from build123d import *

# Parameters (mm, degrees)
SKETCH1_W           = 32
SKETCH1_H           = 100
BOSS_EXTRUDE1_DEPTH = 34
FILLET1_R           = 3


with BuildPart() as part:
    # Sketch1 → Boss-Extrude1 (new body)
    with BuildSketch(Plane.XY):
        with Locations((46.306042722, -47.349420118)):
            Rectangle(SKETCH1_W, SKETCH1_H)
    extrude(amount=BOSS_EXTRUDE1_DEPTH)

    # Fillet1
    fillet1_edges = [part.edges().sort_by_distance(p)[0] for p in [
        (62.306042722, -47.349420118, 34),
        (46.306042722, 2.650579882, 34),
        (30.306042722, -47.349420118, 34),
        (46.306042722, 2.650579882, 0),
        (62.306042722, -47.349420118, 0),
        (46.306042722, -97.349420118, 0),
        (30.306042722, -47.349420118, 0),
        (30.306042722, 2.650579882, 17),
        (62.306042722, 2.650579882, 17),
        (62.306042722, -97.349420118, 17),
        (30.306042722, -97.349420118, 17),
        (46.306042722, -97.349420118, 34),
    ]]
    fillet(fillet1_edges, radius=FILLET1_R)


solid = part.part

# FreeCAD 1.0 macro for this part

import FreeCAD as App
import Part
import Sketcher


def add_polygon(sketch, points):
    """Adds a closed chain of lines whose ends are joined by coincident constraints."""
    first, n = sketch.GeometryCount, len(points)
    for a, b in zip(points, points[1:] + points[:1]):
        sketch.addGeometry(Part.LineSegment(App.Vector(*a, 0), App.Vector(*b, 0)), False)
    for i in range(n):
        sketch.addConstraint(Sketcher.Constraint("Coincident", first + i, 2, first + (i + 1) % n, 1))

doc = App.newDocument("Part")
body = doc.addObject("PartDesign::Body", "Body")

sketch1 = body.newObject("Sketcher::SketchObject", "Sketch")
sketch1.AttachmentSupport = (doc.getObject("XY_Plane"), [""])
sketch1.MapMode = "FlatFace"
add_polygon(sketch1, [(30.306043, 2.65058), (30.306043, -97.34942), (62.306043, -97.34942), (62.306043, 2.65058)])
sketch1.addConstraint([
    Sketcher.Constraint("Vertical", 0),
    Sketcher.Constraint("Horizontal", 1),
    Sketcher.Constraint("Vertical", 2),
    Sketcher.Constraint("Horizontal", 3),
    Sketcher.Constraint("DistanceX", 1, 1, 1, 2, 32.0),
    Sketcher.Constraint("DistanceY", 0, 2, 0, 1, 100.0),
    Sketcher.Constraint("DistanceY", 0, 2, -1, 1, 97.34942),
    Sketcher.Constraint("DistanceX", -1, 1, 0, 2, 30.306043),
])
pad1 = body.newObject("PartDesign::Pad", "Pad")
pad1.Profile = sketch1
pad1.Length = 34
doc.recompute()

fillet = body.newObject("PartDesign::Fillet", "Fillet")
fillet.Base = (pad1, ["Edge1"])
fillet.UseAllEdges = True
fillet.Radius = 3

doc.recompute()
